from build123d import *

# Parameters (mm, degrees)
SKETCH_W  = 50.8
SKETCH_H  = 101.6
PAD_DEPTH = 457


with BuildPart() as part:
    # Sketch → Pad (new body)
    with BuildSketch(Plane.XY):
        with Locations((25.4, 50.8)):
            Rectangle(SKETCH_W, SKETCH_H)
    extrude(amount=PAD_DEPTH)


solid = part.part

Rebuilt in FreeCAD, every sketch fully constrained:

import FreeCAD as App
import Part
import Sketcher

V = App.Vector
Q = App.Units.Quantity

doc = App.newDocument("Part")
body = doc.addObject("PartDesign::Body", "Body")

sketch1 = doc.addObject("Sketcher::SketchObject", "Sketch")
body.addObject(sketch1)
sketch1.AttachmentSupport = (doc.XY_Plane, [""])
sketch1.MapMode = "FlatFace"
sketch1.addGeometry(Part.LineSegment(V(0, 102, 0), V(0, 0, 0)), False)
sketch1.addGeometry(Part.LineSegment(V(0, 0, 0), V(51, 0, 0)), False)
sketch1.addGeometry(Part.LineSegment(V(51, 0, 0), V(51, 102, 0)), False)
sketch1.addGeometry(Part.LineSegment(V(51, 102, 0), V(0, 102, 0)), False)
sketch1.addConstraint(Sketcher.Constraint("Coincident", 0, 2, 1, 1))
sketch1.addConstraint(Sketcher.Constraint("Coincident", 1, 2, 2, 1))
sketch1.addConstraint(Sketcher.Constraint("Coincident", 2, 2, 3, 1))
sketch1.addConstraint(Sketcher.Constraint("Coincident", 3, 2, 0, 1))
sketch1.addConstraint(Sketcher.Constraint("Vertical", 0))
sketch1.addConstraint(Sketcher.Constraint("Horizontal", 1))
sketch1.addConstraint(Sketcher.Constraint("Vertical", 2))
sketch1.addConstraint(Sketcher.Constraint("Horizontal", 3))
sketch1.addConstraint(Sketcher.Constraint("Coincident", 0, 2, -1, 1))
sketch1.addConstraint(Sketcher.Constraint("DistanceX", 1, 1, 1, 2, Q("2 in")))
sketch1.addConstraint(Sketcher.Constraint("DistanceY", 0, 2, 0, 1, Q("4 in")))
pad1 = doc.addObject("PartDesign::Pad", "Pad")
body.addObject(pad1)
pad1.Profile = sketch1
pad1.Length = 457

doc.recompute()
